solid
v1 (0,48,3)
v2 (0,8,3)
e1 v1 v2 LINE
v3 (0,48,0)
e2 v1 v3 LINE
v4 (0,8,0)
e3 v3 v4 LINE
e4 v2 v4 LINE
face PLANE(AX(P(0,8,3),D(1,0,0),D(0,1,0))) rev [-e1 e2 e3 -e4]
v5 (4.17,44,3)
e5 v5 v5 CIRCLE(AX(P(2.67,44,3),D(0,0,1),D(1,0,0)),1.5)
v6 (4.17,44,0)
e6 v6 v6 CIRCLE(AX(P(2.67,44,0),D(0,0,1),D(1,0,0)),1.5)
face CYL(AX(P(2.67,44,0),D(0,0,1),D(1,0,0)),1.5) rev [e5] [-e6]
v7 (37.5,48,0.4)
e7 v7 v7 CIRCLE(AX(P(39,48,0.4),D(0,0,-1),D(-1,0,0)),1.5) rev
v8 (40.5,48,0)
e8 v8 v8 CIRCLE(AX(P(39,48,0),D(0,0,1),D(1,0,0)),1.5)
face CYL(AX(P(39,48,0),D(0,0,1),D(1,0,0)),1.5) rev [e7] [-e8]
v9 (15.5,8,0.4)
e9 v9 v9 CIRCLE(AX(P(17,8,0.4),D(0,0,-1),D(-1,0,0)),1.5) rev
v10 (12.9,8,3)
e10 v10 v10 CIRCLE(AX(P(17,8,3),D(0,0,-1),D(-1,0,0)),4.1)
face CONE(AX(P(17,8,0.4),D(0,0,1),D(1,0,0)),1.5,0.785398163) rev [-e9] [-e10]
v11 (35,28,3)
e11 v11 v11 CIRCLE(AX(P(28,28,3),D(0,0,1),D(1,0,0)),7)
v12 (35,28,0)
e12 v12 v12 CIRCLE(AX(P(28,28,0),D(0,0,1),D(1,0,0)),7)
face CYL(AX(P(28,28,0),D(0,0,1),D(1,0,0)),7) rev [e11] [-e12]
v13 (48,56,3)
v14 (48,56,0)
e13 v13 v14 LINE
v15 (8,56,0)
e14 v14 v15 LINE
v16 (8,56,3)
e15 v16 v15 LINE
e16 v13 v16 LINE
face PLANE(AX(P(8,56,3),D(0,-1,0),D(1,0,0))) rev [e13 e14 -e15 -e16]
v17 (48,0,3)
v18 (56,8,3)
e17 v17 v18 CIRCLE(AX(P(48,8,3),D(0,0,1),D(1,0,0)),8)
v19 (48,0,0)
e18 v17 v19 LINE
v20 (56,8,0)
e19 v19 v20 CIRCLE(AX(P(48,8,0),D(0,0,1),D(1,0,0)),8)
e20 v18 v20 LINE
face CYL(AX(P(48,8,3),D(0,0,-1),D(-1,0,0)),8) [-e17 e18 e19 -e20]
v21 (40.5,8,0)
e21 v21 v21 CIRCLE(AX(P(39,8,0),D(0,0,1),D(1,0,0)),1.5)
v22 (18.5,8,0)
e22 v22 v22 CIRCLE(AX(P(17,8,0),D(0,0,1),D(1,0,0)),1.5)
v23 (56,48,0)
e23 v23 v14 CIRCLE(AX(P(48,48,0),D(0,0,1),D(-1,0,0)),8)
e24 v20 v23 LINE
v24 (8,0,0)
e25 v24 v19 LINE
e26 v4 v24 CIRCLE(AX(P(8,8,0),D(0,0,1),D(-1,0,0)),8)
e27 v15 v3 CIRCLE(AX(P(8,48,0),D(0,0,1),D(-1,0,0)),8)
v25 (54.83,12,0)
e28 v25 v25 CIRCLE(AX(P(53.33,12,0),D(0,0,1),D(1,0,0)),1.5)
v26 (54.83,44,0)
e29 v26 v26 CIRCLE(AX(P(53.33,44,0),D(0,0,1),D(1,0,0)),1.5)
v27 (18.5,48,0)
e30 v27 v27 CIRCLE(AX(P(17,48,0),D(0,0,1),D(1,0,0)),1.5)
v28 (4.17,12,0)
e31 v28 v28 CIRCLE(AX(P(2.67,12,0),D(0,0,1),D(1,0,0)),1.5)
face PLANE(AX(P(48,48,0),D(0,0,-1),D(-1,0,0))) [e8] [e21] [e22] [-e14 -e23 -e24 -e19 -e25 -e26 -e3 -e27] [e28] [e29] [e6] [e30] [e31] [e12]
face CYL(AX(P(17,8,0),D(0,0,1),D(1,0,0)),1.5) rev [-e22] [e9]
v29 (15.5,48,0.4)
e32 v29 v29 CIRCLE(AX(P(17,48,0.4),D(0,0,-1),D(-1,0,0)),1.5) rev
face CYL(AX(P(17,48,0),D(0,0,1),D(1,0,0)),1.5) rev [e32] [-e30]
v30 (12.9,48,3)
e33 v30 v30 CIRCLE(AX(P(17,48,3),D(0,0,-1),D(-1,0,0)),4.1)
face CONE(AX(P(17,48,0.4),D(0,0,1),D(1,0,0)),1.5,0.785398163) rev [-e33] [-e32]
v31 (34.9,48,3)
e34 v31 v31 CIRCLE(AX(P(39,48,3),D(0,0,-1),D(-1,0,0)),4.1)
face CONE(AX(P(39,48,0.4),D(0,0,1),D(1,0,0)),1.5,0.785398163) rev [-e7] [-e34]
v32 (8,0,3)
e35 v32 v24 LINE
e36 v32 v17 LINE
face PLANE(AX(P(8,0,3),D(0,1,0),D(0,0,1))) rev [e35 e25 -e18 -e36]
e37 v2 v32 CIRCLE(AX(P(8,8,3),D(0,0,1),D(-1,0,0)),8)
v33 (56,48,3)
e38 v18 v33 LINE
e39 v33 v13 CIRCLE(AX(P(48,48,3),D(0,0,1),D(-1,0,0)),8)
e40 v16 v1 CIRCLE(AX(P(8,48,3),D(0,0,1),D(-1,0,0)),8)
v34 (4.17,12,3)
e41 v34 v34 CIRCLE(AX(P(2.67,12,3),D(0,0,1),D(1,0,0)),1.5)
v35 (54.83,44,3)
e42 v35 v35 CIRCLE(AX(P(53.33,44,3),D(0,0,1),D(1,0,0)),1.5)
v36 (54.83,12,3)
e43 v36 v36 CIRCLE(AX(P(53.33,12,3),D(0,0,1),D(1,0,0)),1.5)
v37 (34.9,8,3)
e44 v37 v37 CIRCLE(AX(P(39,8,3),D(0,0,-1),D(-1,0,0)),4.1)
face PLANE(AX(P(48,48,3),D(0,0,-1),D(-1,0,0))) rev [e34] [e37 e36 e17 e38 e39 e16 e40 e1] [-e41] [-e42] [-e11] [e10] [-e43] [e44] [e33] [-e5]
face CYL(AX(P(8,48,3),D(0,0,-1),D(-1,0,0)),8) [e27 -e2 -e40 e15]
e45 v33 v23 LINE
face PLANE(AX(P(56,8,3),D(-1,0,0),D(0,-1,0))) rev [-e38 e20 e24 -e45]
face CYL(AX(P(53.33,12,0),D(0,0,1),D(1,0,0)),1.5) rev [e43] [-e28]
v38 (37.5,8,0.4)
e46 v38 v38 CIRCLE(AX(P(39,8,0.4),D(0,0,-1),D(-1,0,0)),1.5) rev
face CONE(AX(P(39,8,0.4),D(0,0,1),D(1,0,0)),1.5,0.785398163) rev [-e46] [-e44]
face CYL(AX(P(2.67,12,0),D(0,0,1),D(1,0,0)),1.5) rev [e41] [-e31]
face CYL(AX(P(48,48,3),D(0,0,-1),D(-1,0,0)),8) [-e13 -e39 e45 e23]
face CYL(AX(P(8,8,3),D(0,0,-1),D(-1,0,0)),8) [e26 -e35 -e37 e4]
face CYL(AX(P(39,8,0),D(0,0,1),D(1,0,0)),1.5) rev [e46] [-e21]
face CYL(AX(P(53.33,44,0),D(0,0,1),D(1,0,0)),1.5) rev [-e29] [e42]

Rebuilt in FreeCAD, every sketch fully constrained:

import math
import FreeCAD as App
import Part
import Sketcher
from FreeCAD import Vector


def edges_at(feature, points):
    """Names of the edges that pass closest to the given points."""
    edges = feature.Shape.Edges
    near = lambda p: min(range(len(edges)), key=lambda i: edges[i].distToShape(Part.Vertex(*p))[0])
    return sorted({f"Edge{near(p) + 1}" for p in points})

doc = App.newDocument("Part")
body = doc.addObject("PartDesign::Body", "Body")

sketch1 = body.newObject("Sketcher::SketchObject", "Sketch")
sketch1.AttachmentSupport = (doc.getObject("XY_Plane"), [""])
sketch1.MapMode = "FlatFace"
sketch1.addGeometry(Part.LineSegment(Vector(8, 0, 0), Vector(48, 0, 0)), False)
sketch1.addGeometry(Part.ArcOfCircle(Part.Circle(Vector(48, 8, 0), Vector(0, 0, 1), 8), math.radians(-90), math.radians(0)), False)
sketch1.addGeometry(Part.LineSegment(Vector(56, 8, 0), Vector(56, 48, 0)), False)
sketch1.addGeometry(Part.ArcOfCircle(Part.Circle(Vector(48, 48, 0), Vector(0, 0, 1), 8), math.radians(0), math.radians(90)), False)
sketch1.addGeometry(Part.LineSegment(Vector(48, 56, 0), Vector(8, 56, 0)), False)
sketch1.addGeometry(Part.ArcOfCircle(Part.Circle(Vector(8, 48, 0), Vector(0, 0, 1), 8), math.radians(90), math.radians(180)), False)
sketch1.addGeometry(Part.LineSegment(Vector(0, 48, 0), Vector(0, 8, 0)), False)
sketch1.addGeometry(Part.ArcOfCircle(Part.Circle(Vector(8, 8, 0), Vector(0, 0, 1), 8), math.radians(-180), math.radians(-90)), False)
sketch1.addConstraint(Sketcher.Constraint("Tangent", 0, 2, 1, 1))
sketch1.addConstraint(Sketcher.Constraint("Tangent", 1, 2, 2, 1))
sketch1.addConstraint(Sketcher.Constraint("Tangent", 2, 2, 3, 1))
sketch1.addConstraint(Sketcher.Constraint("Tangent", 3, 2, 4, 1))
sketch1.addConstraint(Sketcher.Constraint("Tangent", 4, 2, 5, 1))
sketch1.addConstraint(Sketcher.Constraint("Tangent", 5, 2, 6, 1))
sketch1.addConstraint(Sketcher.Constraint("Tangent", 6, 2, 7, 1))
sketch1.addConstraint(Sketcher.Constraint("Tangent", 7, 2, 0, 1))
sketch1.addConstraint(Sketcher.Constraint("Horizontal", 0))
sketch1.addConstraint(Sketcher.Constraint("Vertical", 2))
sketch1.addConstraint(Sketcher.Constraint("Horizontal", 4))
sketch1.addConstraint(Sketcher.Constraint("Vertical", 6))
sketch1.addConstraint(Sketcher.Constraint("Equal", 1, 3))
sketch1.addConstraint(Sketcher.Constraint("Equal", 3, 5))
sketch1.addConstraint(Sketcher.Constraint("Equal", 5, 7))
sketch1.addConstraint(Sketcher.Constraint("PointOnObject", 0, 2, -1))
sketch1.addConstraint(Sketcher.Constraint("PointOnObject", 5, 2, -2))
sketch1.addConstraint(Sketcher.Constraint("Equal", 4, 2))
sketch1.addConstraint(Sketcher.Constraint("Radius", 1, 8.0))
sketch1.addConstraint(Sketcher.Constraint("DistanceX", 0, 1, 0, 2, 40.0))
pad1 = body.newObject("PartDesign::Pad", "Pad")
pad1.Profile = sketch1
pad1.Length = 3

sketch2 = body.newObject("Sketcher::SketchObject", "Sketch001")
sketch2.AttachmentSupport = (doc.getObject("XY_Plane"), [""])
sketch2.MapMode = "FlatFace"
sketch2.AttachmentOffset = App.Placement(Vector(0, 0, 3), App.Rotation())
sketch2.addGeometry(Part.Circle(Vector(28, 28, 0), Vector(0, 0, 1), 7), False)
sketch2.addConstraint(Sketcher.Constraint("Diameter", 0, 14.0))
sketch2.addConstraint(Sketcher.Constraint("DistanceX", -1, 1, 0, 3, 28.0))
sketch2.addConstraint(Sketcher.Constraint("DistanceY", -1, 1, 0, 3, 28.0))
pocket1 = body.newObject("PartDesign::Pocket", "Pocket")
pocket1.Profile = sketch2
pocket1.Type = "ThroughAll"

sketch3 = body.newObject("Sketcher::SketchObject", "Sketch002")
sketch3.AttachmentSupport = (doc.getObject("XY_Plane"), [""])
sketch3.MapMode = "FlatFace"
sketch3.AttachmentOffset = App.Placement(Vector(0, 0, 3), App.Rotation())
sketch3.addGeometry(Part.Circle(Vector(2.67, 12, 0), Vector(0, 0, 1), 1.5), False)
sketch3.addGeometry(Part.Circle(Vector(53.33, 12, 0), Vector(0, 0, 1), 1.5), False)
sketch3.addGeometry(Part.Circle(Vector(53.33, 44, 0), Vector(0, 0, 1), 1.5), False)
sketch3.addGeometry(Part.Circle(Vector(2.67, 44, 0), Vector(0, 0, 1), 1.5), False)
sketch3.addConstraint(Sketcher.Constraint("Equal", 0, 1))
sketch3.addConstraint(Sketcher.Constraint("Equal", 1, 2))
sketch3.addConstraint(Sketcher.Constraint("Equal", 2, 3))
sketch3.addConstraint(Sketcher.Constraint("Horizontal", 0, 3, 1, 3))
sketch3.addConstraint(Sketcher.Constraint("Horizontal", 2, 3, 3, 3))
sketch3.addConstraint(Sketcher.Constraint("Vertical", 1, 3, 2, 3))
sketch3.addConstraint(Sketcher.Constraint("Vertical", 0, 3, 3, 3))
sketch3.addConstraint(Sketcher.Constraint("Diameter", 0, 3.0))
sketch3.addConstraint(Sketcher.Constraint("DistanceY", -1, 1, 0, 3, 12.0))
sketch3.addConstraint(Sketcher.Constraint("DistanceY", -1, 1, 2, 3, 44.0))
sketch3.addConstraint(Sketcher.Constraint("DistanceX", -1, 1, 0, 3, 2.67))
sketch3.addConstraint(Sketcher.Constraint("DistanceX", -1, 1, 1, 3, 53.33))
pocket2 = body.newObject("PartDesign::Pocket", "Pocket001")
pocket2.Profile = sketch3
pocket2.Type = "ThroughAll"

sketch4 = body.newObject("Sketcher::SketchObject", "Sketch003")
sketch4.AttachmentSupport = (doc.getObject("XY_Plane"), [""])
sketch4.MapMode = "FlatFace"
sketch4.AttachmentOffset = App.Placement(Vector(0, 0, 3), App.Rotation())
sketch4.addGeometry(Part.Circle(Vector(17, 8, 0), Vector(0, 0, 1), 1.5), False)
sketch4.addGeometry(Part.Circle(Vector(39, 8, 0), Vector(0, 0, 1), 1.5), False)
sketch4.addGeometry(Part.Circle(Vector(39, 48, 0), Vector(0, 0, 1), 1.5), False)
sketch4.addGeometry(Part.Circle(Vector(17, 48, 0), Vector(0, 0, 1), 1.5), False)
sketch4.addConstraint(Sketcher.Constraint("Equal", 0, 1))
sketch4.addConstraint(Sketcher.Constraint("Equal", 1, 2))
sketch4.addConstraint(Sketcher.Constraint("Equal", 2, 3))
sketch4.addConstraint(Sketcher.Constraint("Horizontal", 0, 3, 1, 3))
sketch4.addConstraint(Sketcher.Constraint("Horizontal", 2, 3, 3, 3))
sketch4.addConstraint(Sketcher.Constraint("Vertical", 1, 3, 2, 3))
sketch4.addConstraint(Sketcher.Constraint("Vertical", 0, 3, 3, 3))
sketch4.addConstraint(Sketcher.Constraint("Diameter", 0, 3.0))
sketch4.addConstraint(Sketcher.Constraint("DistanceX", -1, 1, 0, 3, 17.0))
sketch4.addConstraint(Sketcher.Constraint("DistanceY", -1, 1, 0, 3, 8.0))
sketch4.addConstraint(Sketcher.Constraint("DistanceX", -1, 1, 1, 3, 39.0))
sketch4.addConstraint(Sketcher.Constraint("DistanceY", -1, 1, 2, 3, 48.0))
pocket3 = body.newObject("PartDesign::Pocket", "Pocket002")
pocket3.Profile = sketch4
pocket3.Type = "ThroughAll"
doc.recompute()

chamfer = body.newObject("PartDesign::Chamfer", "Chamfer")
chamfer.Base = (pocket3, edges_at(pocket3, [
    (15.5, 48, 3),
    (37.5, 48, 3),
    (37.5, 8, 3),
    (15.5, 8, 3),
]))
chamfer.Size = 2.6

doc.recompute()
